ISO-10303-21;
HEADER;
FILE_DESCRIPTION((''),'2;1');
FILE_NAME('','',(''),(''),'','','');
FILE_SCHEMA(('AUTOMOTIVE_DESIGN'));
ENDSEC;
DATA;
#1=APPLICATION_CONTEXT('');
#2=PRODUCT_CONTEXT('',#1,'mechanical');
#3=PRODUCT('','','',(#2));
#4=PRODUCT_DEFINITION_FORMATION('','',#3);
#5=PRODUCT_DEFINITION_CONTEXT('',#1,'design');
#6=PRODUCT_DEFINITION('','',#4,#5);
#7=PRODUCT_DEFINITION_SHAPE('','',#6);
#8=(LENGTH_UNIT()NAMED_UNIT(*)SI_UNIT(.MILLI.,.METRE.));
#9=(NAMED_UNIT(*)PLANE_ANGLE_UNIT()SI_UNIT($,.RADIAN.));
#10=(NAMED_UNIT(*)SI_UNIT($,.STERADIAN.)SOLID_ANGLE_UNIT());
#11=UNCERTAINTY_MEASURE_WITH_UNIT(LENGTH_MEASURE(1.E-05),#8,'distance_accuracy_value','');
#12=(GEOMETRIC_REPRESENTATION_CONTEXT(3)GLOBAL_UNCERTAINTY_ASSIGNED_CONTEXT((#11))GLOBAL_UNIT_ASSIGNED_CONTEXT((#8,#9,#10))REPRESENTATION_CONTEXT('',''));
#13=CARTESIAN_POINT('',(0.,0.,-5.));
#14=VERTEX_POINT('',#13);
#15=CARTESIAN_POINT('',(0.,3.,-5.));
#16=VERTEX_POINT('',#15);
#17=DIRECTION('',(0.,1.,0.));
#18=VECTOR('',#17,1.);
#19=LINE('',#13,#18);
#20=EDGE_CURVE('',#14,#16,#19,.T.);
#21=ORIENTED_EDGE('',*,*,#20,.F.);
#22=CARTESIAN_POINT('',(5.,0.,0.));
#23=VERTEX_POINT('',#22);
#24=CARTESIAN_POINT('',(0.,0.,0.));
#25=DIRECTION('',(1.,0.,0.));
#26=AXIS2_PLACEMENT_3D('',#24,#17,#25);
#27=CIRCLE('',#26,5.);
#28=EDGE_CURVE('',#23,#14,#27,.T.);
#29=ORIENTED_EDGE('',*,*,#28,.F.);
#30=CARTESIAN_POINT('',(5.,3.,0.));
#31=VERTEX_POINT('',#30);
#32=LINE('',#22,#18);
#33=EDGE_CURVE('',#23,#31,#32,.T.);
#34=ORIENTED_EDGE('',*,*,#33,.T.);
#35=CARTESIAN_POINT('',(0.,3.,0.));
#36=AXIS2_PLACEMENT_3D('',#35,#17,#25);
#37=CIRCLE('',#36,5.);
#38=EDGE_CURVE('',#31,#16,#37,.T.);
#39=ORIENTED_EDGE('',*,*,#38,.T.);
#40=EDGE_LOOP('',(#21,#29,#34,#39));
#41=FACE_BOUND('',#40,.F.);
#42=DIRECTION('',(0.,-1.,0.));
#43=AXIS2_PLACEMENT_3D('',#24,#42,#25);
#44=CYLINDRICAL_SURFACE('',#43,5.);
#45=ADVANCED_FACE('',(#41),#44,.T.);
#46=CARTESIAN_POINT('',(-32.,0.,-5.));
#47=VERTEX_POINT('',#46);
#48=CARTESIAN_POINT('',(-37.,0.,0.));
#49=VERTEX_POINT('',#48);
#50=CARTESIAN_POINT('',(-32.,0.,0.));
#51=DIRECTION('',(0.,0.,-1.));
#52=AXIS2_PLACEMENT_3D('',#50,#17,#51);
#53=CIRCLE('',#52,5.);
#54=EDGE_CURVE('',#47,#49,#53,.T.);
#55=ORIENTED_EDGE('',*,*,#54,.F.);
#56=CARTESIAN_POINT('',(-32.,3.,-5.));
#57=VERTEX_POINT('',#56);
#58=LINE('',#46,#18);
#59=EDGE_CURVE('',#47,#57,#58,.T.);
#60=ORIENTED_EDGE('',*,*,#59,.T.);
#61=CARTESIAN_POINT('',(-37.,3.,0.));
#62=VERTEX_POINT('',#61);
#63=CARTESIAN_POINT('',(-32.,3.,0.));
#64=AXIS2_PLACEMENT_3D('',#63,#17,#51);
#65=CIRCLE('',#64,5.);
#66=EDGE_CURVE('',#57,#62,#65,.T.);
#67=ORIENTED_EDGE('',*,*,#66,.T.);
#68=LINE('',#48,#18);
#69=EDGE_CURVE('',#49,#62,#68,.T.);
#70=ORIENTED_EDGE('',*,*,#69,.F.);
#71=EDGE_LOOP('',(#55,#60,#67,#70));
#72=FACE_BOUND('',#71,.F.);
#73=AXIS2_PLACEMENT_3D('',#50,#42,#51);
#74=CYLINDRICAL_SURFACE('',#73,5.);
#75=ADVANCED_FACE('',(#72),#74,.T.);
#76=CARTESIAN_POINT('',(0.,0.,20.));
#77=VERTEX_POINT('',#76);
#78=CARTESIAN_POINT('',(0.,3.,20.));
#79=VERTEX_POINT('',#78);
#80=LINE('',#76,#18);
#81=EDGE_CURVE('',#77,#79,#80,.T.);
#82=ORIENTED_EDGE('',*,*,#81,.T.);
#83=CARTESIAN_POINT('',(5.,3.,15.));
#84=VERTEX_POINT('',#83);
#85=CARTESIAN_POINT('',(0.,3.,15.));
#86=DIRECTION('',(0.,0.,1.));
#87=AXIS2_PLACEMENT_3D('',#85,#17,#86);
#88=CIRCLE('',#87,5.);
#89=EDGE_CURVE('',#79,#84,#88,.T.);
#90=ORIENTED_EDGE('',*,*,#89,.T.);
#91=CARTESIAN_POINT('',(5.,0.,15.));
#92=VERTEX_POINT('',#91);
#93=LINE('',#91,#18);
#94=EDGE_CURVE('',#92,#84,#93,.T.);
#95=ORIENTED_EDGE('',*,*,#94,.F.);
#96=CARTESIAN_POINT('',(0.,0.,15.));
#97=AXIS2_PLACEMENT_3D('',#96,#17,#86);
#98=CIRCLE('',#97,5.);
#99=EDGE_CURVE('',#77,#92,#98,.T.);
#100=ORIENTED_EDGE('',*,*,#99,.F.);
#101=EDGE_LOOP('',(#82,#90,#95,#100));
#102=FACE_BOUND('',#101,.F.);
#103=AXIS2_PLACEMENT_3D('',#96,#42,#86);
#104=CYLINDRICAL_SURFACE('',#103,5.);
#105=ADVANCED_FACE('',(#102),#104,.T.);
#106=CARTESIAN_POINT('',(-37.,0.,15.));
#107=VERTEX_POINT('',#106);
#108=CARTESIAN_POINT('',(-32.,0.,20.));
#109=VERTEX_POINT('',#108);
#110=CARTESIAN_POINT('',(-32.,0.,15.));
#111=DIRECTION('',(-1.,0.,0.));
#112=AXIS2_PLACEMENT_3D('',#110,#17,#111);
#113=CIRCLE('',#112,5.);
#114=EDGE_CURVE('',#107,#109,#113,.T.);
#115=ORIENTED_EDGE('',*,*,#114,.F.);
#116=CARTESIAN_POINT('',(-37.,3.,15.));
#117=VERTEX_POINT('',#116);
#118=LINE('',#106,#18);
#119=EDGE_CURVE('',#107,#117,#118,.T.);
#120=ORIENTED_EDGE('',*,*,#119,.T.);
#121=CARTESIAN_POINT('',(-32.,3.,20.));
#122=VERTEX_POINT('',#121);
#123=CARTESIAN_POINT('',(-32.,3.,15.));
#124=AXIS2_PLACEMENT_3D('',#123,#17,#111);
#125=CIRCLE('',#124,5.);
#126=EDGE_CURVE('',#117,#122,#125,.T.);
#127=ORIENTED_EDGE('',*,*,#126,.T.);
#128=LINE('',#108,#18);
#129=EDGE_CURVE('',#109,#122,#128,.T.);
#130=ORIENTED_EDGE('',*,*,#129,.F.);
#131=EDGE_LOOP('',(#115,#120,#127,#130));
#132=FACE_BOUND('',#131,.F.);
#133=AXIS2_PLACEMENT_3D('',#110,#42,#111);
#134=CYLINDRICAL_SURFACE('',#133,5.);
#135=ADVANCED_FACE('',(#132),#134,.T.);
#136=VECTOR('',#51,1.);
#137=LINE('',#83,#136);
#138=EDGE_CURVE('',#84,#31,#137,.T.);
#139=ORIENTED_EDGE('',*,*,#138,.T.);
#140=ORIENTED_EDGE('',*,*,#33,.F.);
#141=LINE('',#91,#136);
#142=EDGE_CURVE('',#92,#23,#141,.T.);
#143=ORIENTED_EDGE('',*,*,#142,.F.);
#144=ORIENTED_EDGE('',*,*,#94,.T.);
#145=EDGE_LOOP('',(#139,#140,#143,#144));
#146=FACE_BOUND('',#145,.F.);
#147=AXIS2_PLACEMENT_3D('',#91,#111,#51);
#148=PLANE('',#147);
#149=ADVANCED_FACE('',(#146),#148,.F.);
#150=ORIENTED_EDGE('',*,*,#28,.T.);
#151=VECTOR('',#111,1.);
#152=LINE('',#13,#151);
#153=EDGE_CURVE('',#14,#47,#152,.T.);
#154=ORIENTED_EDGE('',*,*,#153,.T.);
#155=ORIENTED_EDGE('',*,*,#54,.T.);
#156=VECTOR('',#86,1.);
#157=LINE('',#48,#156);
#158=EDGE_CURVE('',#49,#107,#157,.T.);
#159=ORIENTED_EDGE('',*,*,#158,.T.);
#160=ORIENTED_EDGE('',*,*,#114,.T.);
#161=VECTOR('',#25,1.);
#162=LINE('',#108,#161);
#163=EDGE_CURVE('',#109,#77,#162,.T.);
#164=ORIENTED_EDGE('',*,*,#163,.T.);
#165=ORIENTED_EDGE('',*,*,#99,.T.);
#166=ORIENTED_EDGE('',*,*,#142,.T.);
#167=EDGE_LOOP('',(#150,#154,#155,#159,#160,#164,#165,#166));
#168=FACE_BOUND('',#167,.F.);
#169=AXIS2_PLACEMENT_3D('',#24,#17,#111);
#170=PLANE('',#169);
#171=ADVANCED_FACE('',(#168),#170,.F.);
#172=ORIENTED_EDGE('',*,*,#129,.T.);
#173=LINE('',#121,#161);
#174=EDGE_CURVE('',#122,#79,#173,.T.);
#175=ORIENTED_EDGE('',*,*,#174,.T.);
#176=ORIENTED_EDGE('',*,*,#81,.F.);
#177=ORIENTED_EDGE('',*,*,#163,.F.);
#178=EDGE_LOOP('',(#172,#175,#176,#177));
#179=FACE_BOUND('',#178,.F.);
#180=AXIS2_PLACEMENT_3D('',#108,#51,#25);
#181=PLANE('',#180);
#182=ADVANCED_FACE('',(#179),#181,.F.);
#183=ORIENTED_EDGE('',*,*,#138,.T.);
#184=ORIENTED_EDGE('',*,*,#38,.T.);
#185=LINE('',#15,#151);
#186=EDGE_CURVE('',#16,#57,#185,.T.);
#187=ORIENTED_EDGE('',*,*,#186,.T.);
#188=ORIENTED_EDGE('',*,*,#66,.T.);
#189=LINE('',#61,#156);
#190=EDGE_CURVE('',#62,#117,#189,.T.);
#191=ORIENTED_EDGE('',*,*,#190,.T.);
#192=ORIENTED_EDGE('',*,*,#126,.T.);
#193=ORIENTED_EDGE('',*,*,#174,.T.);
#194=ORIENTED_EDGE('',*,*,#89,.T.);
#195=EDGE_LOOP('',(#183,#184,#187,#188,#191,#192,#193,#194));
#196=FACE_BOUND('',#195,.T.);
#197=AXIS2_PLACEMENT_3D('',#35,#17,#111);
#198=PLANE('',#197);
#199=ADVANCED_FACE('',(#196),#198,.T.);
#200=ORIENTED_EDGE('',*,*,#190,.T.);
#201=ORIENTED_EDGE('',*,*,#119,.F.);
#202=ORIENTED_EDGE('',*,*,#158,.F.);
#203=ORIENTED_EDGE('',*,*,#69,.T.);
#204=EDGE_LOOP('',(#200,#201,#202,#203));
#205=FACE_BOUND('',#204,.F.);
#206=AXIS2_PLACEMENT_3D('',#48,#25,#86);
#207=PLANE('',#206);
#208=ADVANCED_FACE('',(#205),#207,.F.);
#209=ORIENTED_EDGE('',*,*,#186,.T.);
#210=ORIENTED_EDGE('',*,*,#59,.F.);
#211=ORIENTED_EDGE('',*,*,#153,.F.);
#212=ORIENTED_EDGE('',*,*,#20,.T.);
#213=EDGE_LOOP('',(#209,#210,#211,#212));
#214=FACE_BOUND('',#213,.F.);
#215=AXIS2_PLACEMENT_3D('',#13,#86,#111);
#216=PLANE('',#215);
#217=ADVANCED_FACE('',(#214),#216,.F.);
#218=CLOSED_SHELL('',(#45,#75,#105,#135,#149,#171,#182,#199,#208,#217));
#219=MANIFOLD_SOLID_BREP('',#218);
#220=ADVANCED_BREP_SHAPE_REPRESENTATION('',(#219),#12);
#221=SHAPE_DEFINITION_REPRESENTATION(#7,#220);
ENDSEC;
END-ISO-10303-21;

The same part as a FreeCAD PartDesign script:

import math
import FreeCAD as App
import Part
import Sketcher
from FreeCAD import Vector
Q = App.Units.Quantity

doc = App.newDocument("Part")
params = doc.addObject("Spreadsheet::Sheet", "Params")
for row, (alias, value) in enumerate([
    ("sketch1_radius", "5 mm"),
    ("sketch1_width", "32 mm"),
    ("pad1_length", "3 mm"),
], start=1):
    params.set(f"A{row}", alias)
    params.set(f"B{row}", "=" + value)
    params.setAlias(f"B{row}", alias)

body = doc.addObject("PartDesign::Body", "Body")

# Sketch on XZ plane
sketch1 = body.newObject("Sketcher::SketchObject", "Sketch")
sketch1.AttachmentSupport = (doc.getObject("XZ_Plane"), [""])
sketch1.MapMode = "FlatFace"
sketch1.addGeometry(Part.ArcOfCircle(Part.Circle(Vector(0, 0, 0), Vector(0, 0, 1), 5), math.radians(-90), math.radians(0)), False)
sketch1.addGeometry(Part.LineSegment(Vector(0, -5, 0), Vector(-32, -5, 0)), False)
sketch1.addGeometry(Part.ArcOfCircle(Part.Circle(Vector(-32, 0, 0), Vector(0, 0, 1), 5), math.radians(180), math.radians(270)), False)
sketch1.addGeometry(Part.LineSegment(Vector(-37, 0, 0), Vector(-37, 15, 0)), False)
sketch1.addGeometry(Part.ArcOfCircle(Part.Circle(Vector(-32, 15, 0), Vector(0, 0, 1), 5), math.radians(90), math.radians(180)), False)
sketch1.addGeometry(Part.LineSegment(Vector(-32, 20, 0), Vector(0, 20, 0)), False)
sketch1.addGeometry(Part.ArcOfCircle(Part.Circle(Vector(0, 15, 0), Vector(0, 0, 1), 5), math.radians(0), math.radians(90)), False)
sketch1.addGeometry(Part.LineSegment(Vector(5, 15, 0), Vector(5, 0, 0)), False)
sketch1.addConstraint(Sketcher.Constraint("Tangent", 0, 1, 1, 1))
sketch1.addConstraint(Sketcher.Constraint("Tangent", 1, 2, 2, 2))
sketch1.addConstraint(Sketcher.Constraint("Tangent", 2, 1, 3, 1))
sketch1.addConstraint(Sketcher.Constraint("Tangent", 3, 2, 4, 2))
sketch1.addConstraint(Sketcher.Constraint("Tangent", 4, 1, 5, 1))
sketch1.addConstraint(Sketcher.Constraint("Tangent", 5, 2, 6, 2))
sketch1.addConstraint(Sketcher.Constraint("Tangent", 6, 1, 7, 1))
sketch1.addConstraint(Sketcher.Constraint("Tangent", 7, 2, 0, 2))
sketch1.addConstraint(Sketcher.Constraint("Horizontal", 1))
sketch1.addConstraint(Sketcher.Constraint("Vertical", 3))
sketch1.addConstraint(Sketcher.Constraint("Horizontal", 5))
sketch1.addConstraint(Sketcher.Constraint("Vertical", 7))
sketch1.addConstraint(Sketcher.Constraint("Coincident", 0, 3, -1, 1))
sketch1.addConstraint(Sketcher.Constraint("Equal", 0, 2))
sketch1.addConstraint(Sketcher.Constraint("Equal", 2, 4))
sketch1.addConstraint(Sketcher.Constraint("Equal", 4, 6))
sketch1.addConstraint(Sketcher.Constraint("Radius", 0, Q("5 mm")))
sketch1.addConstraint(Sketcher.Constraint("DistanceY", 1, 2, 4, 1, Q("25 mm")))
sketch1.addConstraint(Sketcher.Constraint("DistanceX", 1, 2, 1, 1, Q("32 mm")))
sketch1.setExpression("Constraints[16]", "Params.sketch1_radius")
sketch1.setExpression("Constraints[18]", "Params.sketch1_width")
pad1 = body.newObject("PartDesign::Pad", "Pad")
pad1.Profile = sketch1
pad1.setExpression("Length", "Params.pad1_length")
pad1.Reversed = True

doc.recompute()
